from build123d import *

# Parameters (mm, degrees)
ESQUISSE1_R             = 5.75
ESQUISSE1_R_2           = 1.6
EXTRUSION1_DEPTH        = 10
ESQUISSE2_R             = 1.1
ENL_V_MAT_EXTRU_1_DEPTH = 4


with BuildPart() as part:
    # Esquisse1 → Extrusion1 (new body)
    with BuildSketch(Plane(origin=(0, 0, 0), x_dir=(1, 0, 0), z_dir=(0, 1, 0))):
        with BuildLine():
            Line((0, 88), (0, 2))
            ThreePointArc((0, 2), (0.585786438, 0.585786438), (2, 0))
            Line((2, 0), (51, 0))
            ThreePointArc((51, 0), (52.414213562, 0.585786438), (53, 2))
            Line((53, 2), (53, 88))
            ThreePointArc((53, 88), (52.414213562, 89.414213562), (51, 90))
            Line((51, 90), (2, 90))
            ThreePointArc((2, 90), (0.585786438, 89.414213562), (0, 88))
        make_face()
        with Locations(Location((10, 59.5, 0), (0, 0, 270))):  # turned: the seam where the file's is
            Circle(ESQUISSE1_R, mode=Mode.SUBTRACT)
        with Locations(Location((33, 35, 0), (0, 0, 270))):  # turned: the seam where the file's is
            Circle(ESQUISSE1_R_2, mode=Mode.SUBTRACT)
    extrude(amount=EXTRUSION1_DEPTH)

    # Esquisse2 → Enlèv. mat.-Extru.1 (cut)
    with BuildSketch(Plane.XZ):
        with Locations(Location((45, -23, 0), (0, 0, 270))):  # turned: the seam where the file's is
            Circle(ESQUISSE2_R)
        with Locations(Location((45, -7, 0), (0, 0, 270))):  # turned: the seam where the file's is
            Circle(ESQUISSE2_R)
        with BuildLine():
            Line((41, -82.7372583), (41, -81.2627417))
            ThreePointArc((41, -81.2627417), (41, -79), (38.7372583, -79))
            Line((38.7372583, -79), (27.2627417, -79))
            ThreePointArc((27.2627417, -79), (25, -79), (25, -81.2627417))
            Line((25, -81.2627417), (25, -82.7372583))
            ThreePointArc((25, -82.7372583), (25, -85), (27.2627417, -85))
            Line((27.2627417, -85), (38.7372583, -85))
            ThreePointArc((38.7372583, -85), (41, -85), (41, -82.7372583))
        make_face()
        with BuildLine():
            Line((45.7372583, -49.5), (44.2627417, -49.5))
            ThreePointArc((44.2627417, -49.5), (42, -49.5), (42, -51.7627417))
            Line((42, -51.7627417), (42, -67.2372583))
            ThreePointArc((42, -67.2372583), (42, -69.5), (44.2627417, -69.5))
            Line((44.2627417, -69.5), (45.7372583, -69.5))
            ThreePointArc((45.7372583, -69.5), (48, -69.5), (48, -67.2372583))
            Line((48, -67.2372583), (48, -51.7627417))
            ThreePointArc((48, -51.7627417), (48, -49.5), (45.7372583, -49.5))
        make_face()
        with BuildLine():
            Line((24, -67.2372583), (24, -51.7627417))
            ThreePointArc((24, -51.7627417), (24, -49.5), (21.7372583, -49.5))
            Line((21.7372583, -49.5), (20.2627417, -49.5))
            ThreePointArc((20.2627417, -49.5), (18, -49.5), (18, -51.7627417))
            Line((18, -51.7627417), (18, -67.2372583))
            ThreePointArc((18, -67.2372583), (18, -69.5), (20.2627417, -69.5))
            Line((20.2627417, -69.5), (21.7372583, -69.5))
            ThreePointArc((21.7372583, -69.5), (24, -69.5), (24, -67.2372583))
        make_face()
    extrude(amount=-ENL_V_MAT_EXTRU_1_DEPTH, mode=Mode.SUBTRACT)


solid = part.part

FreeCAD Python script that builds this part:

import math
import FreeCAD as App
import Part
import Sketcher
from FreeCAD import Vector
Q = App.Units.Quantity

doc = App.newDocument("Part")
body = doc.addObject("PartDesign::Body", "Body")

# Sketch on XZ plane
sketch1 = doc.addObject("Sketcher::SketchObject", "Sketch")
body.addObject(sketch1)
sketch1.AttachmentSupport = (doc.XZ_Plane, [""])
sketch1.MapMode = "FlatFace"
sketch1.addGeometry([
    Part.LineSegment(Vector(0, -88, 0), Vector(0, -2, 0)),  # 0
    Part.ArcOfCircle(Part.Circle(Vector(2, -2, 0), Vector(0, 0, 1), 2), math.radians(90), math.radians(180)),  # 1
    Part.LineSegment(Vector(2, 0, 0), Vector(51, 0, 0)),  # 2
    Part.ArcOfCircle(Part.Circle(Vector(51, -2, 0), Vector(0, 0, 1), 2), math.radians(0), math.radians(90)),  # 3
    Part.LineSegment(Vector(53, -2, 0), Vector(53, -88, 0)),  # 4
    Part.ArcOfCircle(Part.Circle(Vector(51, -88, 0), Vector(0, 0, 1), 2), math.radians(-90), math.radians(0)),  # 5
    Part.LineSegment(Vector(51, -90, 0), Vector(2, -90, 0)),  # 6
    Part.ArcOfCircle(Part.Circle(Vector(2, -88, 0), Vector(0, 0, 1), 2), math.radians(-180), math.radians(-90)),  # 7
    Part.Circle(Vector(33, -35, 0), Vector(0, 0, 1), 1.6),  # 8
    Part.Circle(Vector(10, -59.5, 0), Vector(0, 0, 1), 5.8),  # 9
], False)
sketch1.addConstraint([
    Sketcher.Constraint("Tangent", 0, 2, 1, 2),
    Sketcher.Constraint("Tangent", 1, 1, 2, 1),
    Sketcher.Constraint("Tangent", 2, 2, 3, 2),
    Sketcher.Constraint("Tangent", 3, 1, 4, 1),
    Sketcher.Constraint("Tangent", 4, 2, 5, 2),
    Sketcher.Constraint("Tangent", 5, 1, 6, 1),
    Sketcher.Constraint("Tangent", 6, 2, 7, 2),
    Sketcher.Constraint("Tangent", 7, 1, 0, 1),
    Sketcher.Constraint("Vertical", 0),
    Sketcher.Constraint("Horizontal", 2),
    Sketcher.Constraint("Vertical", 4),
    Sketcher.Constraint("Horizontal", 6),
    Sketcher.Constraint("Equal", 1, 3),
    Sketcher.Constraint("Equal", 3, 5),
    Sketcher.Constraint("Equal", 5, 7),
    Sketcher.Constraint("PointOnObject", 0, 2, -2),
    Sketcher.Constraint("PointOnObject", 1, 1, -1),
    Sketcher.Constraint("Radius", 1, Q("2 mm")),
    Sketcher.Constraint("Diameter", 8, Q("3.2 mm")),
    Sketcher.Constraint("Diameter", 9, Q("11.5 mm")),
    Sketcher.Constraint("DistanceX", 2, 1, 2, 2, Q("49 mm")),
    Sketcher.Constraint("DistanceY", 0, 1, 0, 2, Q("86 mm")),
    Sketcher.Constraint("DistanceX", -1, 1, 8, 3, Q("33 mm")),
    Sketcher.Constraint("DistanceY", 8, 3, -1, 1, Q("35 mm")),
    Sketcher.Constraint("DistanceX", -1, 1, 9, 3, Q("10 mm")),
    Sketcher.Constraint("DistanceY", 9, 3, -1, 1, Q("59.5 mm")),
])
pad1 = doc.addObject("PartDesign::Pad", "Pad")
body.addObject(pad1)
pad1.Profile = sketch1
pad1.Length = 10
pad1.Reversed = True

# Sketch on XZ plane
sketch2 = doc.addObject("Sketcher::SketchObject", "Sketch001")
body.addObject(sketch2)
sketch2.AttachmentSupport = (doc.XZ_Plane, [""])
sketch2.MapMode = "FlatFace"
sketch2.addGeometry([
    Part.Circle(Vector(45, -23, 0), Vector(0, 0, 1), 1.1),  # 0
    Part.Circle(Vector(45, -7, 0), Vector(0, 0, 1), 1.1),  # 1
    Part.LineSegment(Vector(41, -82.7, 0), Vector(41, -81.3, 0)),  # 2
    Part.ArcOfCircle(Part.Circle(Vector(39.9, -80.1, 0), Vector(0, 0, 1), 1.6), math.radians(-45), math.radians(135)),  # 3
    Part.LineSegment(Vector(38.7, -79, 0), Vector(27.3, -79, 0)),  # 4
    Part.ArcOfCircle(Part.Circle(Vector(26.1, -80.1, 0), Vector(0, 0, 1), 1.6), math.radians(45), math.radians(225)),  # 5
    Part.LineSegment(Vector(25, -81.3, 0), Vector(25, -82.7, 0)),  # 6
    Part.ArcOfCircle(Part.Circle(Vector(26.1, -83.9, 0), Vector(0, 0, 1), 1.6), math.radians(135), math.radians(315)),  # 7
    Part.LineSegment(Vector(27.3, -85, 0), Vector(38.7, -85, 0)),  # 8
    Part.ArcOfCircle(Part.Circle(Vector(39.9, -83.9, 0), Vector(0, 0, 1), 1.6), math.radians(-135), math.radians(45)),  # 9
    Part.LineSegment(Vector(45.7, -49.5, 0), Vector(44.3, -49.5, 0)),  # 10
    Part.ArcOfCircle(Part.Circle(Vector(43.1, -50.6, 0), Vector(0, 0, 1), 1.6), math.radians(45), math.radians(225)),  # 11
    Part.LineSegment(Vector(42, -51.8, 0), Vector(42, -67.2, 0)),  # 12
    Part.ArcOfCircle(Part.Circle(Vector(43.1, -68.4, 0), Vector(0, 0, 1), 1.6), math.radians(135), math.radians(315)),  # 13
    Part.LineSegment(Vector(44.3, -69.5, 0), Vector(45.7, -69.5, 0)),  # 14
    Part.ArcOfCircle(Part.Circle(Vector(46.9, -68.4, 0), Vector(0, 0, 1), 1.6), math.radians(-135), math.radians(45)),  # 15
    Part.LineSegment(Vector(48, -67.2, 0), Vector(48, -51.8, 0)),  # 16
    Part.ArcOfCircle(Part.Circle(Vector(46.9, -50.6, 0), Vector(0, 0, 1), 1.6), math.radians(-45), math.radians(135)),  # 17
    Part.LineSegment(Vector(24, -67.2, 0), Vector(24, -51.8, 0)),  # 18
    Part.ArcOfCircle(Part.Circle(Vector(22.9, -50.6, 0), Vector(0, 0, 1), 1.6), math.radians(-45), math.radians(135)),  # 19
    Part.LineSegment(Vector(21.7, -49.5, 0), Vector(20.3, -49.5, 0)),  # 20
    Part.ArcOfCircle(Part.Circle(Vector(19.1, -50.6, 0), Vector(0, 0, 1), 1.6), math.radians(45), math.radians(225)),  # 21
    Part.LineSegment(Vector(18, -51.8, 0), Vector(18, -67.2, 0)),  # 22
    Part.ArcOfCircle(Part.Circle(Vector(19.1, -68.4, 0), Vector(0, 0, 1), 1.6), math.radians(135), math.radians(315)),  # 23
    Part.LineSegment(Vector(20.3, -69.5, 0), Vector(21.7, -69.5, 0)),  # 24
    Part.ArcOfCircle(Part.Circle(Vector(22.9, -68.4, 0), Vector(0, 0, 1), 1.6), math.radians(-135), math.radians(45)),  # 25
], False)
sketch2.addConstraint([
    Sketcher.Constraint("Coincident", 2, 2, 3, 1),
    Sketcher.Constraint("Coincident", 3, 2, 4, 1),
    Sketcher.Constraint("Coincident", 4, 2, 5, 1),
    Sketcher.Constraint("Coincident", 5, 2, 6, 1),
    Sketcher.Constraint("Coincident", 6, 2, 7, 1),
    Sketcher.Constraint("Coincident", 7, 2, 8, 1),
    Sketcher.Constraint("Coincident", 8, 2, 9, 1),
    Sketcher.Constraint("Coincident", 9, 2, 2, 1),
    Sketcher.Constraint("Coincident", 10, 2, 11, 1),
    Sketcher.Constraint("Coincident", 11, 2, 12, 1),
    Sketcher.Constraint("Coincident", 12, 2, 13, 1),
    Sketcher.Constraint("Coincident", 13, 2, 14, 1),
    Sketcher.Constraint("Coincident", 14, 2, 15, 1),
    Sketcher.Constraint("Coincident", 15, 2, 16, 1),
    Sketcher.Constraint("Coincident", 16, 2, 17, 1),
    Sketcher.Constraint("Coincident", 17, 2, 10, 1),
    Sketcher.Constraint("Coincident", 18, 2, 19, 1),
    Sketcher.Constraint("Coincident", 19, 2, 20, 1),
    Sketcher.Constraint("Coincident", 20, 2, 21, 1),
    Sketcher.Constraint("Coincident", 21, 2, 22, 1),
    Sketcher.Constraint("Coincident", 22, 2, 23, 1),
    Sketcher.Constraint("Coincident", 23, 2, 24, 1),
    Sketcher.Constraint("Coincident", 24, 2, 25, 1),
    Sketcher.Constraint("Coincident", 25, 2, 18, 1),
    Sketcher.Constraint("Vertical", 2),
    Sketcher.Constraint("Horizontal", 4),
    Sketcher.Constraint("Vertical", 6),
    Sketcher.Constraint("Horizontal", 8),
    Sketcher.Constraint("Horizontal", 10),
    Sketcher.Constraint("Vertical", 12),
    Sketcher.Constraint("Horizontal", 14),
    Sketcher.Constraint("Vertical", 16),
    Sketcher.Constraint("Vertical", 18),
    Sketcher.Constraint("Horizontal", 20),
    Sketcher.Constraint("Vertical", 22),
    Sketcher.Constraint("Horizontal", 24),
    Sketcher.Constraint("Equal", 0, 1),
    Sketcher.Constraint("Equal", 3, 5),
    Sketcher.Constraint("Equal", 5, 7),
    Sketcher.Constraint("Equal", 7, 9),
    Sketcher.Constraint("Equal", 9, 11),
    Sketcher.Constraint("Equal", 11, 13),
    Sketcher.Constraint("Equal", 13, 15),
    Sketcher.Constraint("Equal", 15, 17),
    Sketcher.Constraint("Equal", 17, 19),
    Sketcher.Constraint("Equal", 19, 21),
    Sketcher.Constraint("Equal", 21, 23),
    Sketcher.Constraint("Equal", 23, 25),
    Sketcher.Constraint("Horizontal", 3, 3, 5, 3),
    Sketcher.Constraint("Horizontal", 7, 3, 9, 3),
    Sketcher.Constraint("Horizontal", 13, 3, 15, 3),
    Sketcher.Constraint("Horizontal", 11, 3, 17, 3),
    Sketcher.Constraint("Horizontal", 17, 3, 19, 3),
    Sketcher.Constraint("Horizontal", 19, 3, 21, 3),
    Sketcher.Constraint("Horizontal", 15, 3, 23, 3),
    Sketcher.Constraint("Horizontal", 23, 3, 25, 3),
    Sketcher.Constraint("Horizontal", 2, 2, 5, 2),
    Sketcher.Constraint("Horizontal", 6, 2, 9, 2),
    Sketcher.Constraint("Horizontal", 12, 2, 15, 2),
    Sketcher.Constraint("Horizontal", 11, 2, 16, 2),
    Sketcher.Constraint("Horizontal", 16, 2, 18, 2),
    Sketcher.Constraint("Horizontal", 17, 2, 19, 2),
    Sketcher.Constraint("Horizontal", 18, 2, 21, 2),
    Sketcher.Constraint("Horizontal", 15, 2, 22, 2),
    Sketcher.Constraint("Horizontal", 14, 2, 23, 2),
    Sketcher.Constraint("Horizontal", 22, 2, 25, 2),
    Sketcher.Constraint("Vertical", 0, 3, 1, 3),
    Sketcher.Constraint("Vertical", 5, 3, 7, 3),
    Sketcher.Constraint("Vertical", 11, 3, 13, 3),
    Sketcher.Constraint("Vertical", 4, 2, 7, 2),
    Sketcher.Constraint("Vertical", 10, 2, 13, 2),
    Sketcher.Constraint("Equal", 14, 20),
    Sketcher.Constraint("Equal", 24, 2),
    Sketcher.Constraint("Diameter", 0, Q("2.2 mm")),
    Sketcher.Constraint("Radius", 3, Q("1.6 mm")),
    Sketcher.Constraint("DistanceX", -1, 1, 0, 3, Q("45 mm")),
    Sketcher.Constraint("DistanceY", 0, 3, -1, 1, Q("23 mm")),
    Sketcher.Constraint("DistanceY", 1, 3, -1, 1, Q("7 mm")),
    Sketcher.Constraint("DistanceX", -1, 1, 2, 2, Q("41 mm")),
    Sketcher.Constraint("DistanceY", 3, 2, -1, 1, Q("79 mm")),
    Sketcher.Constraint("DistanceX", -1, 1, 5, 2, Q("25 mm")),
    Sketcher.Constraint("DistanceY", 7, 2, -1, 1, Q("85 mm")),
    Sketcher.Constraint("DistanceX", -1, 1, 11, 2, Q("42 mm")),
    Sketcher.Constraint("DistanceX", -1, 1, 15, 2, Q("48 mm")),
    Sketcher.Constraint("DistanceX", -1, 1, 18, 2, Q("24 mm")),
    Sketcher.Constraint("DistanceX", 5, 3, 11, 3, Q("17 mm")),
    Sketcher.Constraint("DistanceX", 3, 2, 14, 2, Q("7 mm")),
    Sketcher.Constraint("DistanceY", 10, 2, -1, 1, Q("49.5 mm")),
    Sketcher.Constraint("DistanceY", 13, 2, -1, 1, Q("69.5 mm")),
    Sketcher.Constraint("DistanceX", -1, 1, 3, 3, Q("39.868629 mm")),
])
pocket1 = doc.addObject("PartDesign::Pocket", "Pocket")
body.addObject(pocket1)
pocket1.Profile = sketch2
pocket1.Length = 4

doc.recompute()
